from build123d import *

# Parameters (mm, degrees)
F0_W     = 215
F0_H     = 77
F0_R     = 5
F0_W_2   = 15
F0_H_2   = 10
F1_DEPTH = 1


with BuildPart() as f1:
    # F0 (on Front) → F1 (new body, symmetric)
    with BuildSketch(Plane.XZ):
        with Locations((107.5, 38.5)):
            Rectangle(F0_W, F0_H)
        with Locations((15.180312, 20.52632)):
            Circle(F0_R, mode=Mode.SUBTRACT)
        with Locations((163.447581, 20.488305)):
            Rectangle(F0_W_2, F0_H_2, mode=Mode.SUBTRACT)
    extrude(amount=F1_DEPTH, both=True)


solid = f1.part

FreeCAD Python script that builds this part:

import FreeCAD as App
import Part
import Sketcher
from FreeCAD import Vector

doc = App.newDocument("Part")
body = doc.addObject("PartDesign::Body", "Body")

sketch1 = body.newObject("Sketcher::SketchObject", "Sketch")
sketch1.AttachmentSupport = (doc.getObject("XZ_Plane"), [""])
sketch1.MapMode = "FlatFace"
sketch1.addGeometry(Part.LineSegment(Vector(0, 77, 0), Vector(0, 0, 0)), False)
sketch1.addGeometry(Part.LineSegment(Vector(0, 0, 0), Vector(215, 0, 0)), False)
sketch1.addGeometry(Part.LineSegment(Vector(215, 0, 0), Vector(215, 77, 0)), False)
sketch1.addGeometry(Part.LineSegment(Vector(215, 77, 0), Vector(0, 77, 0)), False)
sketch1.addGeometry(Part.LineSegment(Vector(171, 15, 0), Vector(156, 15, 0)), False)
sketch1.addGeometry(Part.LineSegment(Vector(156, 15, 0), Vector(156, 25, 0)), False)
sketch1.addGeometry(Part.LineSegment(Vector(156, 25, 0), Vector(171, 25, 0)), False)
sketch1.addGeometry(Part.LineSegment(Vector(171, 25, 0), Vector(171, 15, 0)), False)
sketch1.addGeometry(Part.Circle(Vector(15, 21, 0), Vector(0, 0, 1), 5), False)
sketch1.addConstraint(Sketcher.Constraint("Coincident", 0, 2, 1, 1))
sketch1.addConstraint(Sketcher.Constraint("Coincident", 1, 2, 2, 1))
sketch1.addConstraint(Sketcher.Constraint("Coincident", 2, 2, 3, 1))
sketch1.addConstraint(Sketcher.Constraint("Coincident", 3, 2, 0, 1))
sketch1.addConstraint(Sketcher.Constraint("Coincident", 4, 2, 5, 1))
sketch1.addConstraint(Sketcher.Constraint("Coincident", 5, 2, 6, 1))
sketch1.addConstraint(Sketcher.Constraint("Coincident", 6, 2, 7, 1))
sketch1.addConstraint(Sketcher.Constraint("Coincident", 7, 2, 4, 1))
sketch1.addConstraint(Sketcher.Constraint("Vertical", 0))
sketch1.addConstraint(Sketcher.Constraint("Horizontal", 1))
sketch1.addConstraint(Sketcher.Constraint("Vertical", 2))
sketch1.addConstraint(Sketcher.Constraint("Horizontal", 3))
sketch1.addConstraint(Sketcher.Constraint("Horizontal", 4))
sketch1.addConstraint(Sketcher.Constraint("Vertical", 5))
sketch1.addConstraint(Sketcher.Constraint("Horizontal", 6))
sketch1.addConstraint(Sketcher.Constraint("Vertical", 7))
sketch1.addConstraint(Sketcher.Constraint("Coincident", 0, 2, -1, 1))
sketch1.addConstraint(Sketcher.Constraint("Diameter", 8, 10.0))
sketch1.addConstraint(Sketcher.Constraint("DistanceX", 1, 1, 1, 2, 215.0))
sketch1.addConstraint(Sketcher.Constraint("DistanceX", 4, 2, 4, 1, 15.0))
sketch1.addConstraint(Sketcher.Constraint("DistanceY", 0, 2, 0, 1, 77.0))
sketch1.addConstraint(Sketcher.Constraint("DistanceY", 5, 1, 5, 2, 10.0))
sketch1.addConstraint(Sketcher.Constraint("DistanceY", -1, 1, 8, 3, 20.52632))
sketch1.addConstraint(Sketcher.Constraint("DistanceX", -1, 1, 4, 2, 155.947581))
sketch1.addConstraint(Sketcher.Constraint("DistanceX", 8, 3, 4, 2, 140.767269))
sketch1.addConstraint(Sketcher.Constraint("DistanceY", -1, 1, 4, 2, 15.488305))
pad1 = body.newObject("PartDesign::Pad", "Pad")
pad1.Profile = sketch1
pad1.Length = 2
pad1.Midplane = True

doc.recompute()
